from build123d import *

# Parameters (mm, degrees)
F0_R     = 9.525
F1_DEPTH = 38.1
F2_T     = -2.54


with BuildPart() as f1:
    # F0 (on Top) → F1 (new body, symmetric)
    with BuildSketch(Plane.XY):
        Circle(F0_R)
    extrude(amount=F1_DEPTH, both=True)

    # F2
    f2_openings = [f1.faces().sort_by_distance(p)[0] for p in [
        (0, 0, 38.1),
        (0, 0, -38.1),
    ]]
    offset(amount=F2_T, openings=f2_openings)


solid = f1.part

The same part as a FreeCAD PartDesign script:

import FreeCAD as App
import Part
import Sketcher
Q = App.Units.Quantity


def faces_at(feature, points):
    """Names of the faces that lie closest to the given points."""
    faces = feature.Shape.Faces
    near = lambda p: min(range(len(faces)), key=lambda i: faces[i].distToShape(Part.Vertex(*p))[0])
    return sorted({f"Face{near(p) + 1}" for p in points})

doc = App.newDocument("Part")
body = doc.addObject("PartDesign::Body", "Body")

# Sketch on XY plane
sketch1 = doc.addObject("Sketcher::SketchObject", "Sketch")
body.addObject(sketch1)
sketch1.AttachmentSupport = (doc.XY_Plane, [""])
sketch1.MapMode = "FlatFace"
sketch1.addGeometry(Part.Circle(App.Vector(0, 0, 0), App.Vector(0, 0, 1), 9.525), False)
sketch1.addConstraint([
    Sketcher.Constraint("Coincident", 0, 3, -1, 1),
    Sketcher.Constraint("Diameter", 0, Q("0.75 in")),
])
pad1 = doc.addObject("PartDesign::Pad", "Pad")
body.addObject(pad1)
pad1.Profile = sketch1
pad1.Length = Q("3 in")
pad1.Midplane = True
doc.recompute()

thickness = doc.addObject("PartDesign::Thickness", "Thickness")
body.addObject(thickness)
thickness.Base = (pad1, faces_at(pad1, [(0, 0, 38.1), (0, 0, -38.1)]))
thickness.Value = Q("0.1 in")
thickness.Reversed = True
thickness.Join = "Arc"

doc.recompute()
